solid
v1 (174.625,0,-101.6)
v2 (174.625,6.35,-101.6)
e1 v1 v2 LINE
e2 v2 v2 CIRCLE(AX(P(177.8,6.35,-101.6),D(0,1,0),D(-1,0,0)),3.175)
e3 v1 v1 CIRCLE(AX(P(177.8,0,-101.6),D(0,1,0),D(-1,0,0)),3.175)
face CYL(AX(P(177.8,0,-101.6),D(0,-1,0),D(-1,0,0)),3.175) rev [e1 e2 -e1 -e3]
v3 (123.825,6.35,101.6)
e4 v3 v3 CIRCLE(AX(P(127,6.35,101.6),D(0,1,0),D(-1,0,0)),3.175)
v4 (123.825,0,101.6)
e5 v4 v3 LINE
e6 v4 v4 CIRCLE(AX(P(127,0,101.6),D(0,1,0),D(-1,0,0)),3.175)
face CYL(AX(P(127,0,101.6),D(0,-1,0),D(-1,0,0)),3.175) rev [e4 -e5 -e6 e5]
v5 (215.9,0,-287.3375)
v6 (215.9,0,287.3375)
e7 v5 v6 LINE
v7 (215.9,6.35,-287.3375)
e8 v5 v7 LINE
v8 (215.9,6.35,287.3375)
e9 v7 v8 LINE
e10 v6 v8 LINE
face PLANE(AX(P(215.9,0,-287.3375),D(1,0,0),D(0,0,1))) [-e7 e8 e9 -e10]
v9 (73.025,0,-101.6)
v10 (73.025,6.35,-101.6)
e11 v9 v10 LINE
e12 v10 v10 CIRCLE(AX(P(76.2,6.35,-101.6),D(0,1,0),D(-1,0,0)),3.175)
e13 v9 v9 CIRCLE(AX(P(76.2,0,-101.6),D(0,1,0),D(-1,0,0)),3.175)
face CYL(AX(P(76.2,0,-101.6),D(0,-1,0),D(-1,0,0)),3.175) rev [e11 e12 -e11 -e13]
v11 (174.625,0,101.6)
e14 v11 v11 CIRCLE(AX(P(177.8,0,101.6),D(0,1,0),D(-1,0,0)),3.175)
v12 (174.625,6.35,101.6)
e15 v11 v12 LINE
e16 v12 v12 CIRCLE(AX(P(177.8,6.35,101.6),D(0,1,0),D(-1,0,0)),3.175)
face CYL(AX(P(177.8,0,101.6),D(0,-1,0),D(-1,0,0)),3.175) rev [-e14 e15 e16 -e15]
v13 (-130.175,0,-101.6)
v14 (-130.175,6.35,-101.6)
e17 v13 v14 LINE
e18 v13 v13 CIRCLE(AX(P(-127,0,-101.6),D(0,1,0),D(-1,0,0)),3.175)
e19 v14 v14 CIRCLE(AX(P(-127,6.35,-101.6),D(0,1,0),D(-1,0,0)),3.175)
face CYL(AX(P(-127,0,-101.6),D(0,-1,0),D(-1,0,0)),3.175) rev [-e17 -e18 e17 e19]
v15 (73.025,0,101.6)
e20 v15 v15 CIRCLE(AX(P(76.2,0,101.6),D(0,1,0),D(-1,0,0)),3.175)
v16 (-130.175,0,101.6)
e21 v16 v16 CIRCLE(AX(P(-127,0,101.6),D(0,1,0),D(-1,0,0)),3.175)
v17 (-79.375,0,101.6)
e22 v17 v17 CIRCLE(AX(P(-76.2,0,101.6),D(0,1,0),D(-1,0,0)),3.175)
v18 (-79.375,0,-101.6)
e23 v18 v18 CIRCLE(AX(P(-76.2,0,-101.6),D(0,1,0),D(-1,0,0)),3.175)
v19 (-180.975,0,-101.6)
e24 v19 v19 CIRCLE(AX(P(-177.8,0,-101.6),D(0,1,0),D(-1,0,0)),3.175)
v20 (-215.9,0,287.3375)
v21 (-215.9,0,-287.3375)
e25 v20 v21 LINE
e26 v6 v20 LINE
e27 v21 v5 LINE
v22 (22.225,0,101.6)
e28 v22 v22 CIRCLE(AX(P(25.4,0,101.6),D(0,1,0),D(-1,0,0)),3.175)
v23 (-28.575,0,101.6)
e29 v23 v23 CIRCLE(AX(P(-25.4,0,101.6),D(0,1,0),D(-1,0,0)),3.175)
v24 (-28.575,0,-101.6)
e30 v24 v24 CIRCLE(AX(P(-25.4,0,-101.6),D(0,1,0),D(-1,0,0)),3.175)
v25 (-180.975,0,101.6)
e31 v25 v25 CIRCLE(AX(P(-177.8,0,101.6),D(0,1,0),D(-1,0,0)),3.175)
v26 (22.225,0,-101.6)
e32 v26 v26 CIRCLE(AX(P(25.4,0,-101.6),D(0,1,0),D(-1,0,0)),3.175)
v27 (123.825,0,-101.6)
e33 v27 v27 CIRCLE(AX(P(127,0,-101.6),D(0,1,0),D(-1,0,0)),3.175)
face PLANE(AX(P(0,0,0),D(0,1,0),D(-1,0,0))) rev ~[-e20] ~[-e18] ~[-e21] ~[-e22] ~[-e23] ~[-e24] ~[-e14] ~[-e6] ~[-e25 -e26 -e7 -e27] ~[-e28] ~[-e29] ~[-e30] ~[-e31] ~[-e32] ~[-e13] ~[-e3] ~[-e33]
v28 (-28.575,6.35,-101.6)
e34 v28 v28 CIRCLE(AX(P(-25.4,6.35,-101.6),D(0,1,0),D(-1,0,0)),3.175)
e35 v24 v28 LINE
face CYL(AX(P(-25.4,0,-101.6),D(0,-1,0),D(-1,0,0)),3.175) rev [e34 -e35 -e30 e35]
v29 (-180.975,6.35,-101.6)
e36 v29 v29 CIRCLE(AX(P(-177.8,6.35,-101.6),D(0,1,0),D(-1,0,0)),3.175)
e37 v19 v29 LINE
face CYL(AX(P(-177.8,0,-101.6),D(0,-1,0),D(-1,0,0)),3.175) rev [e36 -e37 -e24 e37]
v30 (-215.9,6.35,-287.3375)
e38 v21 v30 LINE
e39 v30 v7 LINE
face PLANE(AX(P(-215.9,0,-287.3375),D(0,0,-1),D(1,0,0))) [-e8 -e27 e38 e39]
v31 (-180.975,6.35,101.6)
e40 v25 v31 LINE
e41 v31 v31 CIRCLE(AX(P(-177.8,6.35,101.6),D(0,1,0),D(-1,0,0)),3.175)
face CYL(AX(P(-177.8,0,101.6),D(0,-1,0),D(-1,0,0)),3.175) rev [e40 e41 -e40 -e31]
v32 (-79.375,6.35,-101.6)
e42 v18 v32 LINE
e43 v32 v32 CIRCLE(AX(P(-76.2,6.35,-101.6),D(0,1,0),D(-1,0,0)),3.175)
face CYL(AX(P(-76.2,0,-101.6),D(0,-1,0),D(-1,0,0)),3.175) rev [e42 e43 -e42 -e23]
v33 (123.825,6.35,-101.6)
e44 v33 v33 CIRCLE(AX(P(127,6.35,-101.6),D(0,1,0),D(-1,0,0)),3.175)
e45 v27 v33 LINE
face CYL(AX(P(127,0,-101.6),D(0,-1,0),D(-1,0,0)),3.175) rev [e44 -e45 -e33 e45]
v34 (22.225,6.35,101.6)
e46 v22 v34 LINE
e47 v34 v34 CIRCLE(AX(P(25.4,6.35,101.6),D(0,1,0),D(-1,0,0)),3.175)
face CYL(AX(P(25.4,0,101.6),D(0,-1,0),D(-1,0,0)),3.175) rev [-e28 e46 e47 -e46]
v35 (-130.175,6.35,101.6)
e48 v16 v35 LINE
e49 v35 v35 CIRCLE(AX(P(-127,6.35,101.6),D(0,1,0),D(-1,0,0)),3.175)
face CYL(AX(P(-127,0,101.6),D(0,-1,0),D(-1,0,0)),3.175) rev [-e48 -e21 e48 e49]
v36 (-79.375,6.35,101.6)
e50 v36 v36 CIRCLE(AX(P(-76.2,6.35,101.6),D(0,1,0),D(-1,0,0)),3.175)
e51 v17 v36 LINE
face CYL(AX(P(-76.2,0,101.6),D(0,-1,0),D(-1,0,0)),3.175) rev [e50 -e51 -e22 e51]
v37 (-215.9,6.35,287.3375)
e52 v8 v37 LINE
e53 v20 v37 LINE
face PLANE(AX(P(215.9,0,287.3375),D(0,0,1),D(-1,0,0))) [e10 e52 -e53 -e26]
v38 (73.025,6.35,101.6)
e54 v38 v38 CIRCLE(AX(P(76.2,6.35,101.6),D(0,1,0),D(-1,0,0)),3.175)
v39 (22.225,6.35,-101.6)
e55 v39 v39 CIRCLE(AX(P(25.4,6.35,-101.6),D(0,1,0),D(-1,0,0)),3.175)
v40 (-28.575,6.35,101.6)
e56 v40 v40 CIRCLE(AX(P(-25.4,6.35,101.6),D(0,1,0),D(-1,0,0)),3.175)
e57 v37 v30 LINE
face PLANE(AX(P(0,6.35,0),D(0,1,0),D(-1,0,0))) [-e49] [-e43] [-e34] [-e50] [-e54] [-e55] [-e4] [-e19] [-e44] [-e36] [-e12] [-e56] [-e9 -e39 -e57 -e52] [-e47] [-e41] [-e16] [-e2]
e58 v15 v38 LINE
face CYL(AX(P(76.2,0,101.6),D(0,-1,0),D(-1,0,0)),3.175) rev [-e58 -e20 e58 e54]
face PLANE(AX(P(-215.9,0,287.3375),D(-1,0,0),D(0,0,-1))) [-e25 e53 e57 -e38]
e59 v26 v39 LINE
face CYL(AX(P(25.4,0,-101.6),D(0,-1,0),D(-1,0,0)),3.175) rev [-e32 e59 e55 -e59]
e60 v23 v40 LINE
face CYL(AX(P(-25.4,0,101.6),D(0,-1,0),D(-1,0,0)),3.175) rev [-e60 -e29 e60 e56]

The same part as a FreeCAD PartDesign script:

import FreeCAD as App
import Part
import Sketcher
from FreeCAD import Vector
Q = App.Units.Quantity


def add_polygon(sketch, points):
    """Adds a closed chain of lines whose ends are joined by coincident constraints."""
    first, n = sketch.GeometryCount, len(points)
    for a, b in zip(points, points[1:] + points[:1]):
        sketch.addGeometry(Part.LineSegment(App.Vector(*a, 0), App.Vector(*b, 0)), False)
    for i in range(n):
        sketch.addConstraint(Sketcher.Constraint("Coincident", first + i, 2, first + (i + 1) % n, 1))

doc = App.newDocument("Part")
params = doc.addObject("Spreadsheet::Sheet", "Params")
for row, (alias, value) in enumerate([
    ("sketch1_diameter", "0.25 in"),
    ("sketch1_width", "17 in"),
    ("sketch1_height", "22.625 in"),
    ("pad1_length", "0.25 in"),
], start=1):
    params.set(f"A{row}", alias)
    params.set(f"B{row}", "=" + value)
    params.setAlias(f"B{row}", alias)

body = doc.addObject("PartDesign::Body", "Body")

sketch1 = doc.addObject("Sketcher::SketchObject", "Sketch")
body.addObject(sketch1)
sketch1.AttachmentSupport = (doc.XZ_Plane, [""])
sketch1.MapMode = "FlatFace"
add_polygon(sketch1, [(-215.9, 287.3375), (215.9, 287.3375), (215.9, -287.3375), (-215.9, -287.3375)])
sketch1.addGeometry(Part.Circle(Vector(177.8, -101.6, 0), Vector(0, 0, 1), 3.175), False)
sketch1.addGeometry(Part.Circle(Vector(127, -101.6, 0), Vector(0, 0, 1), 3.175), False)
sketch1.addGeometry(Part.Circle(Vector(76.2, -101.6, 0), Vector(0, 0, 1), 3.175), False)
sketch1.addGeometry(Part.Circle(Vector(25.4, -101.6, 0), Vector(0, 0, 1), 3.175), False)
sketch1.addGeometry(Part.Circle(Vector(-25.4, -101.6, 0), Vector(0, 0, 1), 3.175), False)
sketch1.addGeometry(Part.Circle(Vector(-76.2, -101.6, 0), Vector(0, 0, 1), 3.175), False)
sketch1.addGeometry(Part.Circle(Vector(-127, -101.6, 0), Vector(0, 0, 1), 3.175), False)
sketch1.addGeometry(Part.Circle(Vector(-177.8, -101.6, 0), Vector(0, 0, 1), 3.175), False)
sketch1.addGeometry(Part.Circle(Vector(177.8, 101.6, 0), Vector(0, 0, 1), 3.175), False)
sketch1.addGeometry(Part.Circle(Vector(127, 101.6, 0), Vector(0, 0, 1), 3.175), False)
sketch1.addGeometry(Part.Circle(Vector(76.2, 101.6, 0), Vector(0, 0, 1), 3.175), False)
sketch1.addGeometry(Part.Circle(Vector(25.4, 101.6, 0), Vector(0, 0, 1), 3.175), False)
sketch1.addGeometry(Part.Circle(Vector(-25.4, 101.6, 0), Vector(0, 0, 1), 3.175), False)
sketch1.addGeometry(Part.Circle(Vector(-76.2, 101.6, 0), Vector(0, 0, 1), 3.175), False)
sketch1.addGeometry(Part.Circle(Vector(-127, 101.6, 0), Vector(0, 0, 1), 3.175), False)
sketch1.addGeometry(Part.Circle(Vector(-177.8, 101.6, 0), Vector(0, 0, 1), 3.175), False)
sketch1.addConstraint([
    Sketcher.Constraint("Horizontal", 0),
    Sketcher.Constraint("Vertical", 1),
    Sketcher.Constraint("Horizontal", 2),
    Sketcher.Constraint("Vertical", 3),
    Sketcher.Constraint("Equal", 4, 5),
    Sketcher.Constraint("Equal", 5, 6),
    Sketcher.Constraint("Equal", 6, 7),
    Sketcher.Constraint("Equal", 7, 8),
    Sketcher.Constraint("Equal", 8, 9),
    Sketcher.Constraint("Equal", 9, 10),
    Sketcher.Constraint("Equal", 10, 11),
    Sketcher.Constraint("Equal", 11, 12),
    Sketcher.Constraint("Equal", 12, 13),
    Sketcher.Constraint("Equal", 13, 14),
    Sketcher.Constraint("Equal", 14, 15),
    Sketcher.Constraint("Equal", 15, 16),
    Sketcher.Constraint("Equal", 16, 17),
    Sketcher.Constraint("Equal", 17, 18),
    Sketcher.Constraint("Equal", 18, 19),
    Sketcher.Constraint("Symmetric", 11, 3, 12, 3, -1, 1),
    Sketcher.Constraint("Symmetric", 10, 3, 13, 3, -1, 1),
    Sketcher.Constraint("Symmetric", 9, 3, 14, 3, -1, 1),
    Sketcher.Constraint("Symmetric", 8, 3, 15, 3, -1, 1),
    Sketcher.Constraint("Symmetric", 7, 3, 16, 3, -1, 1),
    Sketcher.Constraint("Symmetric", 6, 3, 17, 3, -1, 1),
    Sketcher.Constraint("Symmetric", 5, 3, 18, 3, -1, 1),
    Sketcher.Constraint("Symmetric", 4, 3, 19, 3, -1, 1),
    Sketcher.Constraint("Symmetric", 0, 2, 2, 2, -1, 1),
    Sketcher.Constraint("Symmetric", 7, 3, 8, 3, -2),
    Sketcher.Constraint("Symmetric", 6, 3, 9, 3, -2),
    Sketcher.Constraint("Symmetric", 5, 3, 10, 3, -2),
    Sketcher.Constraint("Symmetric", 4, 3, 11, 3, -2),
    Sketcher.Constraint("Horizontal", 4, 3, 5, 3),
    Sketcher.Constraint("Horizontal", 5, 3, 6, 3),
    Sketcher.Constraint("Horizontal", 6, 3, 7, 3),
    Sketcher.Constraint("Diameter", 4, Q("0.25 in")),
    Sketcher.Constraint("DistanceX", 0, 1, 0, 2, Q("17 in")),
    Sketcher.Constraint("DistanceY", 4, 3, -1, 1, Q("4 in")),
    Sketcher.Constraint("DistanceX", -1, 1, 7, 3, Q("1 in")),
    Sketcher.Constraint("DistanceX", 5, 3, 4, 3, Q("2 in")),
    Sketcher.Constraint("DistanceX", 6, 3, 5, 3, Q("2 in")),
    Sketcher.Constraint("DistanceX", 7, 3, 6, 3, Q("2 in")),
    Sketcher.Constraint("DistanceY", 1, 2, 1, 1, Q("22.625 in")),
])
sketch1.setExpression("Constraints[39]", "Params.sketch1_diameter")
sketch1.setExpression("Constraints[40]", "Params.sketch1_width")
sketch1.setExpression("Constraints[46]", "Params.sketch1_height")
pad1 = doc.addObject("PartDesign::Pad", "Pad")
body.addObject(pad1)
pad1.Profile = sketch1
pad1.setExpression("Length", "Params.pad1_length")
pad1.Reversed = True

doc.recompute()
